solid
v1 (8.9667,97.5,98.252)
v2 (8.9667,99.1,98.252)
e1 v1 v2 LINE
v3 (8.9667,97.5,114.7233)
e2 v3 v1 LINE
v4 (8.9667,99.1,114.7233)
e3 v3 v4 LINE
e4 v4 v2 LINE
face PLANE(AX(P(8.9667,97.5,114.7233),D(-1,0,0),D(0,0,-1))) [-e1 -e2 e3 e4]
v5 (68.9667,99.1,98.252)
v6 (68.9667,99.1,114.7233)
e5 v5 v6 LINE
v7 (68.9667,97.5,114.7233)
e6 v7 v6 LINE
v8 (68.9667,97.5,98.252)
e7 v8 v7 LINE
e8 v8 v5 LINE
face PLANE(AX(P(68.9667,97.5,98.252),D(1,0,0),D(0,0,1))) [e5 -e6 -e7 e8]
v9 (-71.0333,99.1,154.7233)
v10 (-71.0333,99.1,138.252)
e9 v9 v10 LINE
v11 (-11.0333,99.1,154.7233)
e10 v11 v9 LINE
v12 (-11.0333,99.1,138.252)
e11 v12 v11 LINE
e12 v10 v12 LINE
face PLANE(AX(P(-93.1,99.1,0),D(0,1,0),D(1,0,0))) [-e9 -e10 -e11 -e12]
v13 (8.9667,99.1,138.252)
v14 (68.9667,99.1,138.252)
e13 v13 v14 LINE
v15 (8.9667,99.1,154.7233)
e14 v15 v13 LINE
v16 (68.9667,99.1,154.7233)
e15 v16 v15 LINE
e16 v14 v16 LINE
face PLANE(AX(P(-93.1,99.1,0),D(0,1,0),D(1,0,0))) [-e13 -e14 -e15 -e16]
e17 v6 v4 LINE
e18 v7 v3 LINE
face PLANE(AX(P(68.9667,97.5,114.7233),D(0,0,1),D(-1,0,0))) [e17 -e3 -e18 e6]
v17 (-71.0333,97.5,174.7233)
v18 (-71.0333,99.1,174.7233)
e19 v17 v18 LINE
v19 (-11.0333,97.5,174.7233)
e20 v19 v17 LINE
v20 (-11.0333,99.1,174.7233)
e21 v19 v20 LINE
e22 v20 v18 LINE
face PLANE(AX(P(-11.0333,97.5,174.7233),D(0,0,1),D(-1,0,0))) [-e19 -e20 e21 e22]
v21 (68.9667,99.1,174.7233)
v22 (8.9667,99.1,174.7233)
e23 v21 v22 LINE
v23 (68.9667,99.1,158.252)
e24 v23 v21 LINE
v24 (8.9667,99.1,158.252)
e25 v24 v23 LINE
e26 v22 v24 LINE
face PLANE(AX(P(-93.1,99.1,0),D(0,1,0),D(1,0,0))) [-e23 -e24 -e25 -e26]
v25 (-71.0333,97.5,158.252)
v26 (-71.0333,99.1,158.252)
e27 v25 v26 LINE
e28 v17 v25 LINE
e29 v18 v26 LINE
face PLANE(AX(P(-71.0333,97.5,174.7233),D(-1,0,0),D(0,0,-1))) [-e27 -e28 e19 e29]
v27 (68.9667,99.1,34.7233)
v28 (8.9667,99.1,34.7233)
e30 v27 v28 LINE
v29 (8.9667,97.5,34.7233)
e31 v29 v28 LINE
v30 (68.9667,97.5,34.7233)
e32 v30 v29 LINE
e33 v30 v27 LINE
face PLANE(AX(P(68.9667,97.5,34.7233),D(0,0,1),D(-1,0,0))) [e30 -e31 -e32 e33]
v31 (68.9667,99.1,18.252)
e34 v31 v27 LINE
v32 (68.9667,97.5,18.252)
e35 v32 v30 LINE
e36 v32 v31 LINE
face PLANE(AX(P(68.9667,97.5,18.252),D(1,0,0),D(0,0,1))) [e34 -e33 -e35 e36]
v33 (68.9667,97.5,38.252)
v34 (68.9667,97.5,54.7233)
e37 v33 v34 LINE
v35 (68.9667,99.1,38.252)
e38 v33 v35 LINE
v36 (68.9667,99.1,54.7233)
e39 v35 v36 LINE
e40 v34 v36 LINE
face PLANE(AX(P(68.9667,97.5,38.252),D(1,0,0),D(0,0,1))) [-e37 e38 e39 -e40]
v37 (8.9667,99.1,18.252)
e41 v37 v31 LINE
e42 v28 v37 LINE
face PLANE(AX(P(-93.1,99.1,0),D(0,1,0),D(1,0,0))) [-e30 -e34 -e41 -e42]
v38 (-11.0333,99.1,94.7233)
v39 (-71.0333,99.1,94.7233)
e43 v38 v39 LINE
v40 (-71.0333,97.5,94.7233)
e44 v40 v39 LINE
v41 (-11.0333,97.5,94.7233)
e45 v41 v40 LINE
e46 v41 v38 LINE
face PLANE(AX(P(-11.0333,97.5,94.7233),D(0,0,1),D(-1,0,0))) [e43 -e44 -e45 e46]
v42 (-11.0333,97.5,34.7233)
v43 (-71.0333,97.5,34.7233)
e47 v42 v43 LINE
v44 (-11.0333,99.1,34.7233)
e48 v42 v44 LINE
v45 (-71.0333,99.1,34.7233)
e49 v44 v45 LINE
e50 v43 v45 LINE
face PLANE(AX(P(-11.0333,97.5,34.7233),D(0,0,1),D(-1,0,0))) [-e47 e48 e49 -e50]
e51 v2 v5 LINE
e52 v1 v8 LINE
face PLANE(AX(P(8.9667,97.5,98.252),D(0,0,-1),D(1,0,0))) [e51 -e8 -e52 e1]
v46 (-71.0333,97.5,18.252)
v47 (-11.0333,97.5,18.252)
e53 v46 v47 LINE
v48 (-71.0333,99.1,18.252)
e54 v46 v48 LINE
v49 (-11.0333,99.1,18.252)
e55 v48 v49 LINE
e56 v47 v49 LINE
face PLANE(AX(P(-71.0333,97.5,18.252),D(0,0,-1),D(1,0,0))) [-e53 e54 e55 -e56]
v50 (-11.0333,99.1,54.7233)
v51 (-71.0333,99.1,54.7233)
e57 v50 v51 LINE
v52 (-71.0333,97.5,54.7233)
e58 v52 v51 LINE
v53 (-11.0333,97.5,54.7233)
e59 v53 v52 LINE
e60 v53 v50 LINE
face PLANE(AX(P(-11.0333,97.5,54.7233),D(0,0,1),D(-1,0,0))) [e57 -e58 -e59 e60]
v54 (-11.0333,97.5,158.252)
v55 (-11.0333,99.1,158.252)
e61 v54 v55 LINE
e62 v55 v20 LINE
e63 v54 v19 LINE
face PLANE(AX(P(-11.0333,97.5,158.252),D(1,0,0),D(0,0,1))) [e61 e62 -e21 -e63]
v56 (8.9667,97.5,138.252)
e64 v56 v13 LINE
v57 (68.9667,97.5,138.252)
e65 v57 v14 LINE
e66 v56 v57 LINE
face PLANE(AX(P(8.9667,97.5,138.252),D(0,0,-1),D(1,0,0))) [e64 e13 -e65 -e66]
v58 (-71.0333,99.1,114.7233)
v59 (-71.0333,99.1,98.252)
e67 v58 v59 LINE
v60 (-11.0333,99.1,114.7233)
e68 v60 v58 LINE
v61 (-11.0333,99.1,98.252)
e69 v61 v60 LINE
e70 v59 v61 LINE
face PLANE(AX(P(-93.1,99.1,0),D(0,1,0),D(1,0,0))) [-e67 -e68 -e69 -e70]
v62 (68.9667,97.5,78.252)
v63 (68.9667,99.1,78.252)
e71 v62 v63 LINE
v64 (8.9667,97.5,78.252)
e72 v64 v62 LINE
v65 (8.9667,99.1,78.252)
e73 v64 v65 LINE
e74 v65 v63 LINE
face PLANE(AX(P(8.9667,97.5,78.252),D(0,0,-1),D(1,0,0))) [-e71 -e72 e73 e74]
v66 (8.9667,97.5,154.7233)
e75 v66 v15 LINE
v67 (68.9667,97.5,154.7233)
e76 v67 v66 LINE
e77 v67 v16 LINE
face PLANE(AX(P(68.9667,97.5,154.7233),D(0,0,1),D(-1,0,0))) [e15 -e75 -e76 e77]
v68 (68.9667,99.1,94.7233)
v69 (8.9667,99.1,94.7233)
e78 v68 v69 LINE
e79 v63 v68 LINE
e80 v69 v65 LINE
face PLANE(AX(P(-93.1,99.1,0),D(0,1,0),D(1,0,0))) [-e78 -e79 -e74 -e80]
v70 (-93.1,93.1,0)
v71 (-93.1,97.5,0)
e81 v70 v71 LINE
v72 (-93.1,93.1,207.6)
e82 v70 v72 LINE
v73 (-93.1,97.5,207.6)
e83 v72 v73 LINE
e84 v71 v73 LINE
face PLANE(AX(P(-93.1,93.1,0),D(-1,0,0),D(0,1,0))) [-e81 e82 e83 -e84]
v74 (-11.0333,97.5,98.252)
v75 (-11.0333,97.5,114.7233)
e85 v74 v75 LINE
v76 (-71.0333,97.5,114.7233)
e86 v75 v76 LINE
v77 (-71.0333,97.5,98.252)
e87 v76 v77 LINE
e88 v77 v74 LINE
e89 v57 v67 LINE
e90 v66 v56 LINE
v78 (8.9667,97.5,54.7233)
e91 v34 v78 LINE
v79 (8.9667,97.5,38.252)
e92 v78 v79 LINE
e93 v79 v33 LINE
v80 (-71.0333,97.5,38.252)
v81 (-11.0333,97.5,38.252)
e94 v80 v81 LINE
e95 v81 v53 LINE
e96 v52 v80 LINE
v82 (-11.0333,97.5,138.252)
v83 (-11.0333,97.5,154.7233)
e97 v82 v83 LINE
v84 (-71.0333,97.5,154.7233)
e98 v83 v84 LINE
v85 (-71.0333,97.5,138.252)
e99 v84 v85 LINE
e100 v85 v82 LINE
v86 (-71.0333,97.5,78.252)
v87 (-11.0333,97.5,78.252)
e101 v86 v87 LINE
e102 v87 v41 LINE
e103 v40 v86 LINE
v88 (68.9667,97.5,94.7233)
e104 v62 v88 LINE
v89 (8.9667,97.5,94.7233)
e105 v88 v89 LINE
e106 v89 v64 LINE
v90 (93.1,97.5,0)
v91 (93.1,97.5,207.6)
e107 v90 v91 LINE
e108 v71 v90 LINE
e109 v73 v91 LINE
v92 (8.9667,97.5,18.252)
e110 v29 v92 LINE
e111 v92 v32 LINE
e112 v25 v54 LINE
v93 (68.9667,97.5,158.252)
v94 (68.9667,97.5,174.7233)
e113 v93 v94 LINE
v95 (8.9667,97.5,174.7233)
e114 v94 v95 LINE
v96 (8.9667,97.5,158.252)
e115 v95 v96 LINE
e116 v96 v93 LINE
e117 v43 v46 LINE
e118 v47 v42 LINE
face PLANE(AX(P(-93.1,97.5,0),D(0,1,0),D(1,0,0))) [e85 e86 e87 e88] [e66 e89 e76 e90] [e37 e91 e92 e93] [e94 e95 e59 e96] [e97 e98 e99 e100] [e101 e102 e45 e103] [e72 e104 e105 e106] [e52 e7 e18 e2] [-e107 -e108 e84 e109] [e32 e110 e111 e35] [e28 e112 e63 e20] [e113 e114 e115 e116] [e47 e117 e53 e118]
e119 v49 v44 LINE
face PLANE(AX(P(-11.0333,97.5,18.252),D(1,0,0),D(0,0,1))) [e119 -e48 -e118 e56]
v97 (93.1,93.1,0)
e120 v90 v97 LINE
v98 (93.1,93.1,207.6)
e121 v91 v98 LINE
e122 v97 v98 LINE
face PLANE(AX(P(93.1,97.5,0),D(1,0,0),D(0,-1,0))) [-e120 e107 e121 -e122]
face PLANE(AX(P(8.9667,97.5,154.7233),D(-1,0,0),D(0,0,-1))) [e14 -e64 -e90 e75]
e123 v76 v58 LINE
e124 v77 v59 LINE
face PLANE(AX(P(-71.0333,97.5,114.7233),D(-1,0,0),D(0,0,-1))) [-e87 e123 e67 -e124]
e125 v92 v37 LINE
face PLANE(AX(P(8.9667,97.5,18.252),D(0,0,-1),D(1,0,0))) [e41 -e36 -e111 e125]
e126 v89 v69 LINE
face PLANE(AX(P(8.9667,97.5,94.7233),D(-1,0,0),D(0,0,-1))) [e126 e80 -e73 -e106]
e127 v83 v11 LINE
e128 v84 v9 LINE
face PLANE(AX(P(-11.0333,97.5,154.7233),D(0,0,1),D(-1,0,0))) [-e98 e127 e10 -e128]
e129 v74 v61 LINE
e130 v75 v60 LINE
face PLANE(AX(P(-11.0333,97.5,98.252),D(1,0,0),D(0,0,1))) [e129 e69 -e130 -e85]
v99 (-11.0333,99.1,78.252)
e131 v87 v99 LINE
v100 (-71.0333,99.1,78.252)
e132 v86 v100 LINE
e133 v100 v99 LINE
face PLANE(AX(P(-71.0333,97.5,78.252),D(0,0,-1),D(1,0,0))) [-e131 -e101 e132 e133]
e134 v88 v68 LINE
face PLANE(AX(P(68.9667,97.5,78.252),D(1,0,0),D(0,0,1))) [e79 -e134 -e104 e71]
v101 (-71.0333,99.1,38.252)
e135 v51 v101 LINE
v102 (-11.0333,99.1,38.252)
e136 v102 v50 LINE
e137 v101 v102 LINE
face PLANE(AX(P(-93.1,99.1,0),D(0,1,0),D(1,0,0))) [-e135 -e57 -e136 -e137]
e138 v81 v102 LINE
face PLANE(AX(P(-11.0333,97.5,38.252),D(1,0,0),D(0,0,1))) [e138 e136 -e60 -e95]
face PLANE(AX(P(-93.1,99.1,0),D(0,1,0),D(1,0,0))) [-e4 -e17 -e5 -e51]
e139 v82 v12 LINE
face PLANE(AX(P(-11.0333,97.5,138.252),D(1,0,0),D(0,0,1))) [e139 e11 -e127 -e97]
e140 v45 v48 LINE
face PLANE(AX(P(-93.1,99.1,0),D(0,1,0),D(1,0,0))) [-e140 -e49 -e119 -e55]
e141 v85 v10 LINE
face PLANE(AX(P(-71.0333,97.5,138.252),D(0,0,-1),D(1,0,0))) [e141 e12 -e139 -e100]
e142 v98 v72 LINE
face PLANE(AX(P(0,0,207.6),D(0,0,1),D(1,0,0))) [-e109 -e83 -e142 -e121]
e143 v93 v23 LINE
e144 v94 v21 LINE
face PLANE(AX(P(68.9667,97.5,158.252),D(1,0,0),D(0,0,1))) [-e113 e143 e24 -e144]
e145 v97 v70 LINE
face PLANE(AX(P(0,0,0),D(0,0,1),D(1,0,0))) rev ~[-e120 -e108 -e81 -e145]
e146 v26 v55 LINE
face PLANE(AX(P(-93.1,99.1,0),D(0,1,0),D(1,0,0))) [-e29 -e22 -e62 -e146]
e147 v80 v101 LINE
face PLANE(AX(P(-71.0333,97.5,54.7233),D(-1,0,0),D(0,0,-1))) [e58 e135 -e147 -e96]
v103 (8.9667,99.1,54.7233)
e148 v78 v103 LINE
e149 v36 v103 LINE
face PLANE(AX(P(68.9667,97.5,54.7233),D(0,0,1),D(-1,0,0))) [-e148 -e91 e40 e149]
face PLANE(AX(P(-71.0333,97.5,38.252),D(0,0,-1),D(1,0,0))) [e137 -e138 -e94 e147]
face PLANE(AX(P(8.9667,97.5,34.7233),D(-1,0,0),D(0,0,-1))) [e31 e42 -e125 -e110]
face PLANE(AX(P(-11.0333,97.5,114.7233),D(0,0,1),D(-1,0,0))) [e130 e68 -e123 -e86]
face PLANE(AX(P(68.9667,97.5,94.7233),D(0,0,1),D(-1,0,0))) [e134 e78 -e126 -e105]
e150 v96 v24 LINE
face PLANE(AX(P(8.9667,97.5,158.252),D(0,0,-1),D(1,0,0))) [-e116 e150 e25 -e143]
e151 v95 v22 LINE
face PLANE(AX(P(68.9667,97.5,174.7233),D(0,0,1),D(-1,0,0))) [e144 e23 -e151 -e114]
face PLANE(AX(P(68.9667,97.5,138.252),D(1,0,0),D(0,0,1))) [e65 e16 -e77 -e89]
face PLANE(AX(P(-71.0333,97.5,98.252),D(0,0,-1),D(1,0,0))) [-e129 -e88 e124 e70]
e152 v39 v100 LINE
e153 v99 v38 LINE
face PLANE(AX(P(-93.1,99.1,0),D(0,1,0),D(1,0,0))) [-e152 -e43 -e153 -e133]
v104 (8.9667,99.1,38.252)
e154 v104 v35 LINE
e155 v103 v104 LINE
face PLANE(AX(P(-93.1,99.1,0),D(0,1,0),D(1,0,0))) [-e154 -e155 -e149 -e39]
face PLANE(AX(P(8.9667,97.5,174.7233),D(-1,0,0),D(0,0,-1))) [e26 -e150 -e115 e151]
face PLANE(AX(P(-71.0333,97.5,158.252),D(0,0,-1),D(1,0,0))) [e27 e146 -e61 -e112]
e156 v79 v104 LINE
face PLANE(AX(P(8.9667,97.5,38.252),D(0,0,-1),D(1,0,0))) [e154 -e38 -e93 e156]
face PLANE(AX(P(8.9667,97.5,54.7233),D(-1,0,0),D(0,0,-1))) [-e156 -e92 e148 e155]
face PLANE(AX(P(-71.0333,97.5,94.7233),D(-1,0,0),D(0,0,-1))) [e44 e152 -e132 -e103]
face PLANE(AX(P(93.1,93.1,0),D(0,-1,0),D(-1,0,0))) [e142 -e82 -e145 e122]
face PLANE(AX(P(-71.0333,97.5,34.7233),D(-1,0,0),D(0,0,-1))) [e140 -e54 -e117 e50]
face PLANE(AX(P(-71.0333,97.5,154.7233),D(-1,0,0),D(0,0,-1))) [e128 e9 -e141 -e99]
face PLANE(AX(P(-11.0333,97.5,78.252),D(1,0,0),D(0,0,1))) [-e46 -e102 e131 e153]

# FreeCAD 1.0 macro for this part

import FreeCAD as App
import Part
import Sketcher
Q = App.Units.Quantity


def add_polygon(sketch, points):
    """Adds a closed chain of lines whose ends are joined by coincident constraints."""
    first, n = sketch.GeometryCount, len(points)
    for a, b in zip(points, points[1:] + points[:1]):
        sketch.addGeometry(Part.LineSegment(App.Vector(*a, 0), App.Vector(*b, 0)), False)
    for i in range(n):
        sketch.addConstraint(Sketcher.Constraint("Coincident", first + i, 2, first + (i + 1) % n, 1))

doc = App.newDocument("Part")
body = doc.addObject("PartDesign::Body", "Body")

# Sketch on XY plane
sketch1 = body.newObject("Sketcher::SketchObject", "Sketch")
sketch1.AttachmentSupport = (doc.getObject("XY_Plane"), [""])
sketch1.MapMode = "FlatFace"
add_polygon(sketch1, [(-93.1, 93.1), (93.1, 93.1), (93.1, 97.5), (-93.1, 97.5)])  # lines 0-3
sketch1.addConstraint(Sketcher.Constraint("Horizontal", 0))
sketch1.addConstraint(Sketcher.Constraint("Vertical", 1))
sketch1.addConstraint(Sketcher.Constraint("Horizontal", 2))
sketch1.addConstraint(Sketcher.Constraint("Vertical", 3))
sketch1.addConstraint(Sketcher.Constraint("DistanceY", 1, 1, 1, 2, Q("4.4 mm")))
sketch1.addConstraint(Sketcher.Constraint("DistanceX", 0, 1, 0, 2, Q("186.2 mm")))
sketch1.addConstraint(Sketcher.Constraint("DistanceX", -1, 1, 0, 2, Q("93.1 mm")))
sketch1.addConstraint(Sketcher.Constraint("DistanceY", -1, 1, 0, 2, Q("93.1 mm")))
pad1 = body.newObject("PartDesign::Pad", "Pad")
pad1.Profile = sketch1
pad1.Length = 207.6

# Sketch on XZ plane
sketch2 = body.newObject("Sketcher::SketchObject", "Sketch001")
sketch2.AttachmentSupport = (doc.getObject("XZ_Plane"), [""])
sketch2.MapMode = "FlatFace"
sketch2.AttachmentOffset = App.Placement(App.Vector(0, 0, -97.5), App.Rotation())
add_polygon(sketch2, [(-11, 18), (-71, 18), (-71, 35), (-11, 35)])  # lines 0-3
add_polygon(sketch2, [(69, 18), (9, 18), (9, 35), (69, 35)])  # lines 4-7
add_polygon(sketch2, [(-11, 38), (-71, 38), (-71, 55), (-11, 55)])  # lines 8-11
add_polygon(sketch2, [(69, 38), (9, 38), (9, 55), (69, 55)])  # lines 12-15
add_polygon(sketch2, [(-71, 115), (-11, 115), (-11, 98), (-71, 98)])  # lines 16-19
add_polygon(sketch2, [(-11, 78), (-71, 78), (-71, 95), (-11, 95)])  # lines 20-23
add_polygon(sketch2, [(9, 78), (9, 95), (69, 95), (69, 78)])  # lines 24-27
add_polygon(sketch2, [(9, 98), (9, 115), (69, 115), (69, 98)])  # lines 28-31
add_polygon(sketch2, [(-71, 175), (-11, 175), (-11, 158), (-71, 158)])  # lines 32-35
add_polygon(sketch2, [(-11, 138), (-71, 138), (-71, 155), (-11, 155)])  # lines 36-39
add_polygon(sketch2, [(9, 138), (9, 155), (69, 155), (69, 138)])  # lines 40-43
add_polygon(sketch2, [(9, 158), (9, 175), (69, 175), (69, 158)])  # lines 44-47
sketch2.addConstraint(Sketcher.Constraint("Horizontal", 0))
sketch2.addConstraint(Sketcher.Constraint("Vertical", 1))
sketch2.addConstraint(Sketcher.Constraint("Horizontal", 2))
sketch2.addConstraint(Sketcher.Constraint("Vertical", 3))
sketch2.addConstraint(Sketcher.Constraint("Horizontal", 4))
sketch2.addConstraint(Sketcher.Constraint("Vertical", 5))
sketch2.addConstraint(Sketcher.Constraint("Horizontal", 6))
sketch2.addConstraint(Sketcher.Constraint("Vertical", 7))
sketch2.addConstraint(Sketcher.Constraint("Horizontal", 8))
sketch2.addConstraint(Sketcher.Constraint("Vertical", 9))
sketch2.addConstraint(Sketcher.Constraint("Horizontal", 10))
sketch2.addConstraint(Sketcher.Constraint("Vertical", 11))
sketch2.addConstraint(Sketcher.Constraint("Horizontal", 12))
sketch2.addConstraint(Sketcher.Constraint("Vertical", 13))
sketch2.addConstraint(Sketcher.Constraint("Horizontal", 14))
sketch2.addConstraint(Sketcher.Constraint("Vertical", 15))
sketch2.addConstraint(Sketcher.Constraint("Horizontal", 16))
sketch2.addConstraint(Sketcher.Constraint("Vertical", 17))
sketch2.addConstraint(Sketcher.Constraint("Horizontal", 18))
sketch2.addConstraint(Sketcher.Constraint("Vertical", 19))
sketch2.addConstraint(Sketcher.Constraint("Horizontal", 20))
sketch2.addConstraint(Sketcher.Constraint("Vertical", 21))
sketch2.addConstraint(Sketcher.Constraint("Horizontal", 22))
sketch2.addConstraint(Sketcher.Constraint("Vertical", 23))
sketch2.addConstraint(Sketcher.Constraint("Vertical", 24))
sketch2.addConstraint(Sketcher.Constraint("Horizontal", 25))
sketch2.addConstraint(Sketcher.Constraint("Vertical", 26))
sketch2.addConstraint(Sketcher.Constraint("Horizontal", 27))
sketch2.addConstraint(Sketcher.Constraint("Vertical", 28))
sketch2.addConstraint(Sketcher.Constraint("Horizontal", 29))
sketch2.addConstraint(Sketcher.Constraint("Vertical", 30))
sketch2.addConstraint(Sketcher.Constraint("Horizontal", 31))
sketch2.addConstraint(Sketcher.Constraint("Horizontal", 32))
sketch2.addConstraint(Sketcher.Constraint("Vertical", 33))
sketch2.addConstraint(Sketcher.Constraint("Horizontal", 34))
sketch2.addConstraint(Sketcher.Constraint("Vertical", 35))
sketch2.addConstraint(Sketcher.Constraint("Horizontal", 36))
sketch2.addConstraint(Sketcher.Constraint("Vertical", 37))
sketch2.addConstraint(Sketcher.Constraint("Horizontal", 38))
sketch2.addConstraint(Sketcher.Constraint("Vertical", 39))
sketch2.addConstraint(Sketcher.Constraint("Vertical", 40))
sketch2.addConstraint(Sketcher.Constraint("Horizontal", 41))
sketch2.addConstraint(Sketcher.Constraint("Vertical", 42))
sketch2.addConstraint(Sketcher.Constraint("Horizontal", 43))
sketch2.addConstraint(Sketcher.Constraint("Vertical", 44))
sketch2.addConstraint(Sketcher.Constraint("Horizontal", 45))
sketch2.addConstraint(Sketcher.Constraint("Vertical", 46))
sketch2.addConstraint(Sketcher.Constraint("Horizontal", 47))
sketch2.addConstraint(Sketcher.Constraint("Horizontal", 3, 2, 4, 2))
sketch2.addConstraint(Sketcher.Constraint("Horizontal", 2, 2, 5, 2))
sketch2.addConstraint(Sketcher.Constraint("Horizontal", 11, 2, 12, 2))
sketch2.addConstraint(Sketcher.Constraint("Horizontal", 10, 2, 13, 2))
sketch2.addConstraint(Sketcher.Constraint("Horizontal", 22, 2, 24, 2))
sketch2.addConstraint(Sketcher.Constraint("Horizontal", 23, 2, 26, 2))
sketch2.addConstraint(Sketcher.Constraint("Horizontal", 19, 2, 28, 2))
sketch2.addConstraint(Sketcher.Constraint("Horizontal", 18, 2, 30, 2))
sketch2.addConstraint(Sketcher.Constraint("Horizontal", 38, 2, 40, 2))
sketch2.addConstraint(Sketcher.Constraint("Horizontal", 39, 2, 42, 2))
sketch2.addConstraint(Sketcher.Constraint("Horizontal", 35, 2, 44, 2))
sketch2.addConstraint(Sketcher.Constraint("Horizontal", 34, 2, 46, 2))
sketch2.addConstraint(Sketcher.Constraint("Vertical", 1, 2, 8, 2))
sketch2.addConstraint(Sketcher.Constraint("Vertical", 3, 2, 10, 2))
sketch2.addConstraint(Sketcher.Constraint("Vertical", 5, 2, 12, 2))
sketch2.addConstraint(Sketcher.Constraint("Vertical", 7, 2, 14, 2))
sketch2.addConstraint(Sketcher.Constraint("Vertical", 11, 2, 16, 2))
sketch2.addConstraint(Sketcher.Constraint("Vertical", 9, 2, 18, 2))
sketch2.addConstraint(Sketcher.Constraint("Vertical", 19, 2, 20, 2))
sketch2.addConstraint(Sketcher.Constraint("Vertical", 17, 2, 22, 2))
sketch2.addConstraint(Sketcher.Constraint("Vertical", 13, 2, 24, 2))
sketch2.addConstraint(Sketcher.Constraint("Vertical", 15, 2, 25, 2))
sketch2.addConstraint(Sketcher.Constraint("Vertical", 27, 2, 28, 2))
sketch2.addConstraint(Sketcher.Constraint("Vertical", 26, 2, 29, 2))
sketch2.addConstraint(Sketcher.Constraint("Vertical", 23, 2, 32, 2))
sketch2.addConstraint(Sketcher.Constraint("Vertical", 21, 2, 34, 2))
sketch2.addConstraint(Sketcher.Constraint("Vertical", 35, 2, 36, 2))
sketch2.addConstraint(Sketcher.Constraint("Vertical", 33, 2, 38, 2))
sketch2.addConstraint(Sketcher.Constraint("Vertical", 31, 2, 40, 2))
sketch2.addConstraint(Sketcher.Constraint("Vertical", 30, 2, 41, 2))
sketch2.addConstraint(Sketcher.Constraint("Vertical", 43, 2, 44, 2))
sketch2.addConstraint(Sketcher.Constraint("Vertical", 42, 2, 45, 2))
sketch2.addConstraint(Sketcher.Constraint("Equal", 2, 4))
sketch2.addConstraint(Sketcher.Constraint("Equal", 7, 9))
sketch2.addConstraint(Sketcher.Constraint("Equal", 15, 17))
sketch2.addConstraint(Sketcher.Constraint("Equal", 19, 21))
sketch2.addConstraint(Sketcher.Constraint("Equal", 30, 33))
sketch2.addConstraint(Sketcher.Constraint("Equal", 35, 37))
sketch2.addConstraint(Sketcher.Constraint("DistanceX", 0, 2, 0, 1, Q("60 mm")))
sketch2.addConstraint(Sketcher.Constraint("DistanceX", 3, 2, 4, 2, Q("20 mm")))
sketch2.addConstraint(Sketcher.Constraint("DistanceY", 0, 2, 8, 2, Q("20 mm")))
sketch2.addConstraint(Sketcher.Constraint("DistanceY", 10, 2, 16, 2, Q("60 mm")))
sketch2.addConstraint(Sketcher.Constraint("DistanceY", 20, 2, 18, 2, Q("20 mm")))
sketch2.addConstraint(Sketcher.Constraint("DistanceY", 16, 2, 32, 2, Q("60 mm")))
sketch2.addConstraint(Sketcher.Constraint("DistanceY", 36, 2, 34, 2, Q("20 mm")))
sketch2.addConstraint(Sketcher.Constraint("DistanceY", 1, 1, 1, 2, Q("16.4713 mm")))
sketch2.addConstraint(Sketcher.Constraint("DistanceY", -1, 1, 0, 2, Q("18.252 mm")))
sketch2.addConstraint(Sketcher.Constraint("DistanceX", 0, 2, -1, 1, Q("71.0333 mm")))
pad2 = body.newObject("PartDesign::Pad", "Pad001")
pad2.Profile = sketch2
pad2.Length = 1.6
pad2.Reversed = True

doc.recompute()
